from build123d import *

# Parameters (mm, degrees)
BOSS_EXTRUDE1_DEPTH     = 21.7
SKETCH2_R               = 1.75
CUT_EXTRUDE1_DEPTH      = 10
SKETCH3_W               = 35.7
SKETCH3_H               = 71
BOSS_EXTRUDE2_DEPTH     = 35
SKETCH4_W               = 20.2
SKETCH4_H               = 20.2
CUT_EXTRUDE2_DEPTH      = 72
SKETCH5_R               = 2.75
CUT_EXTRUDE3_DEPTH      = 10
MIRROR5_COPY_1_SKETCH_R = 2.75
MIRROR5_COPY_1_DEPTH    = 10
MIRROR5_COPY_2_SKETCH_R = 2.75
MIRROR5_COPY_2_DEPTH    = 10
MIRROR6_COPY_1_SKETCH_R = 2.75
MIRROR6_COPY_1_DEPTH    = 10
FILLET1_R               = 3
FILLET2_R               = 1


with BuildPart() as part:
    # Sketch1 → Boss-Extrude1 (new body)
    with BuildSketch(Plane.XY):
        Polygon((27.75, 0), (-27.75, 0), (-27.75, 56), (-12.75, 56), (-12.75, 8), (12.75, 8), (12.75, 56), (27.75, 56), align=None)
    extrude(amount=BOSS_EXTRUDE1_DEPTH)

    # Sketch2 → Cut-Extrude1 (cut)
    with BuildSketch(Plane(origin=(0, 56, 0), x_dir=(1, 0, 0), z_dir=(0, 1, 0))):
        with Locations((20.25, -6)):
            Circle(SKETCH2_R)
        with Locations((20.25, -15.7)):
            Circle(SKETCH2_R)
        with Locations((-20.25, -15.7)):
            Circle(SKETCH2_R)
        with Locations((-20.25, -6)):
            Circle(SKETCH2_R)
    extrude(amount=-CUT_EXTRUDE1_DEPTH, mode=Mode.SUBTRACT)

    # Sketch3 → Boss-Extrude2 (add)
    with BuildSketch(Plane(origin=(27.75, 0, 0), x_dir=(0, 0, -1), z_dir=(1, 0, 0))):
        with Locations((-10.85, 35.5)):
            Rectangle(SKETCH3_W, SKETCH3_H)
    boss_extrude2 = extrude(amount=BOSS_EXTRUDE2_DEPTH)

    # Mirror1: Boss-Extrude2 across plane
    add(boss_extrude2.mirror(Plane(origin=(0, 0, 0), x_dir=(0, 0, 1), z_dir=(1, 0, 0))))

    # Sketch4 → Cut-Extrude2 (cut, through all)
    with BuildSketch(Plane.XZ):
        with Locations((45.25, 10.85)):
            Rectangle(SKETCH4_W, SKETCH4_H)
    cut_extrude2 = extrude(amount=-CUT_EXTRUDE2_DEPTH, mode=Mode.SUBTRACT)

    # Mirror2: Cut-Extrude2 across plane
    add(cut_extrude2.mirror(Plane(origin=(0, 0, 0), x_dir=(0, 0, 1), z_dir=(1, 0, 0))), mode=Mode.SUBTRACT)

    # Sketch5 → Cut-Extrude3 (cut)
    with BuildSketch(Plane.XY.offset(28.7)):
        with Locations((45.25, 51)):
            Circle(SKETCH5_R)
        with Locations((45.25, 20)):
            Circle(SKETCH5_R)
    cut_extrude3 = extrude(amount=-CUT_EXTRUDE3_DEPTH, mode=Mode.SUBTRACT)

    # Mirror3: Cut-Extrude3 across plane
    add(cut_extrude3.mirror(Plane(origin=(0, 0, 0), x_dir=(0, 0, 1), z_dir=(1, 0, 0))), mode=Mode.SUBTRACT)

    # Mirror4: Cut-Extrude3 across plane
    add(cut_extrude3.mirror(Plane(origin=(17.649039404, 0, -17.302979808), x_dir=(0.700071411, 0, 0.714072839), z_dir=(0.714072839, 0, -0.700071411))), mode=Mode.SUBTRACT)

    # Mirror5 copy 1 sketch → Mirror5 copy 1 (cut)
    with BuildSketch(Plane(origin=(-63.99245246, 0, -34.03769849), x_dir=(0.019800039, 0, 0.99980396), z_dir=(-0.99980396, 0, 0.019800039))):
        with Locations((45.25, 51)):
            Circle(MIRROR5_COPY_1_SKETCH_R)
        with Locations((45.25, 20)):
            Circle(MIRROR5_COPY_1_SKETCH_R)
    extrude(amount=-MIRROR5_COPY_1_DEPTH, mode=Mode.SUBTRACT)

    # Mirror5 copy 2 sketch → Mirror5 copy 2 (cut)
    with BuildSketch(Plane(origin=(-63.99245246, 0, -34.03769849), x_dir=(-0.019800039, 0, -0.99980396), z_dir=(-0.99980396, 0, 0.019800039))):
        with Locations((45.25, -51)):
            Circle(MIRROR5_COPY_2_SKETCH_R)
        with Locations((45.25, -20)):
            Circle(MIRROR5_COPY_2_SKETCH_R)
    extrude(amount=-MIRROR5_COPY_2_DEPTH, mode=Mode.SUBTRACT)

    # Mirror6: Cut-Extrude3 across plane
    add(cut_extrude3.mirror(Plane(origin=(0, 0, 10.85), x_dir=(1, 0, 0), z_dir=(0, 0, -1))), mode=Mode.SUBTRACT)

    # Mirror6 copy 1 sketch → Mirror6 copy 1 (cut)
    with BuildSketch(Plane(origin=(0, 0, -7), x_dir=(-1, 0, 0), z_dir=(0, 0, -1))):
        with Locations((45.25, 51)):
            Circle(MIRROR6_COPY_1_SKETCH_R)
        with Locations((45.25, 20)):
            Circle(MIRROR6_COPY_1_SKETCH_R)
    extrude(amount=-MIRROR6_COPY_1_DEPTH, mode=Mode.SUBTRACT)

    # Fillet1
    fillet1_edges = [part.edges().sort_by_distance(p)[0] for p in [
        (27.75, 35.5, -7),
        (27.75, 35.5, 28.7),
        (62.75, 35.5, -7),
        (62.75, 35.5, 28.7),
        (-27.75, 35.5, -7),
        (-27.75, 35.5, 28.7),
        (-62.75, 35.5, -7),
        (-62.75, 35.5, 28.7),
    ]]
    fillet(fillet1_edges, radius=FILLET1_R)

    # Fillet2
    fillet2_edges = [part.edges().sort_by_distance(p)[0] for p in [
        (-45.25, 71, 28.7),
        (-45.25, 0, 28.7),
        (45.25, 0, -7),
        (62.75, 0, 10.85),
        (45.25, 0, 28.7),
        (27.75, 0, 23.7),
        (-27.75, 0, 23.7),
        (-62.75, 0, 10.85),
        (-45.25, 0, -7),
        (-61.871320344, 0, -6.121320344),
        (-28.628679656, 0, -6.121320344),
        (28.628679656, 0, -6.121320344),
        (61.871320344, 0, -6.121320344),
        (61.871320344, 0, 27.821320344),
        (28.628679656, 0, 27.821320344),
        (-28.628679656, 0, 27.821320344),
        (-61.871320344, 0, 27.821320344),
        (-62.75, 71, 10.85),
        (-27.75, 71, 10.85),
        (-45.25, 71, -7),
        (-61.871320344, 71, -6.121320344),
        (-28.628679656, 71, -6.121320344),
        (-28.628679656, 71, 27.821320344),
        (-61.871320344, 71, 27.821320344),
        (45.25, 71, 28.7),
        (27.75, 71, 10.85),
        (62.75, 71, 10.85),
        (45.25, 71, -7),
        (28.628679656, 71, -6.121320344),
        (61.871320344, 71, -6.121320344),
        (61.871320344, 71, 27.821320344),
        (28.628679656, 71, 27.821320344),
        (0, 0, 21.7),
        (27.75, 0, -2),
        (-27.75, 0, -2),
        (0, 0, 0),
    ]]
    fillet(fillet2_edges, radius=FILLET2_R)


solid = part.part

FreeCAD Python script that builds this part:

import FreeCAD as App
import Part
import Sketcher


def edges_at(feature, points):
    """Names of the edges that pass closest to the given points."""
    edges = feature.Shape.Edges
    near = lambda p: min(range(len(edges)), key=lambda i: edges[i].distToShape(Part.Vertex(*p))[0])
    return sorted({f"Edge{near(p) + 1}" for p in points})


def add_polygon(sketch, points):
    """Adds a closed chain of lines whose ends are joined by coincident constraints."""
    first, n = sketch.GeometryCount, len(points)
    for a, b in zip(points, points[1:] + points[:1]):
        sketch.addGeometry(Part.LineSegment(App.Vector(*a, 0), App.Vector(*b, 0)), False)
    for i in range(n):
        sketch.addConstraint(Sketcher.Constraint("Coincident", first + i, 2, first + (i + 1) % n, 1))

doc = App.newDocument("Part")
params = doc.addObject("Spreadsheet::Sheet", "Params")
for row, (alias, value) in enumerate([
    ("sketch1_width", "15 mm"),
    ("sketch1_height", "56 mm"),
    ("sketch1_height2", "48 mm"),
    ("sketch1_width2", "55.5 mm"),
    ("pad1_length", "21.7 mm"),
    ("sketch2_diameter", "3.5 mm"),
    ("pocket1_length", "10 mm"),
    ("sketch3_width", "71 mm"),
    ("sketch3_height", "35.7 mm"),
    ("pad2_length", "35 mm"),
    ("sketch4_width", "20.2 mm"),
    ("sketch5_diameter", "5.5 mm"),
    ("pocket3_length", "10 mm"),
    ("sketch6_diameter", "5.5 mm"),
    ("pocket4_length", "10 mm"),
    ("sketch7_diameter", "5.5 mm"),
    ("pocket5_length", "10 mm"),
    ("sketch8_diameter", "5.5 mm"),
    ("pocket6_length", "10 mm"),
    ("fillet_radius", "3 mm"),
    ("fillet2_radius", "1 mm"),
], start=1):
    params.set(f"A{row}", alias)
    params.set(f"B{row}", "=" + value)
    params.setAlias(f"B{row}", alias)

body = doc.addObject("PartDesign::Body", "Body")

# Sketch on XY plane
sketch1 = doc.addObject("Sketcher::SketchObject", "Sketch")
body.addObject(sketch1)
sketch1.AttachmentSupport = (doc.XY_Plane, [""])
sketch1.MapMode = "FlatFace"
add_polygon(sketch1, [(-28, 0), (28, 0), (28, 56), (13, 56), (13, 8), (-13, 8), (-13, 56), (-28, 56)])  # lines 0-7
sketch1.addConstraint([
    Sketcher.Constraint("Horizontal", 0),
    Sketcher.Constraint("Vertical", 1),
    Sketcher.Constraint("Horizontal", 2),
    Sketcher.Constraint("Vertical", 3),
    Sketcher.Constraint("Horizontal", 4),
    Sketcher.Constraint("Vertical", 5),
    Sketcher.Constraint("Horizontal", 6),
    Sketcher.Constraint("Vertical", 7),
    Sketcher.Constraint("Symmetric", 0, 2, 7, 2, -1, 1),
    Sketcher.Constraint("Symmetric", 2, 2, 5, 2, -2),
    Sketcher.Constraint("DistanceX", 2, 2, 2, 1, 15.0),
    Sketcher.Constraint("DistanceY", 1, 1, 1, 2, 56.0),
    Sketcher.Constraint("DistanceY", 3, 2, 3, 1, 48.0),
    Sketcher.Constraint("DistanceX", 0, 1, 0, 2, 55.5),
])
sketch1.setExpression("Constraints[18]", "Params.sketch1_width")
sketch1.setExpression("Constraints[19]", "Params.sketch1_height")
sketch1.setExpression("Constraints[20]", "Params.sketch1_height2")
sketch1.setExpression("Constraints[21]", "Params.sketch1_width2")
pad1 = doc.addObject("PartDesign::Pad", "Pad")
body.addObject(pad1)
pad1.Profile = sketch1
pad1.setExpression("Length", "Params.pad1_length")

# Sketch on XZ plane
sketch2 = doc.addObject("Sketcher::SketchObject", "Sketch001")
body.addObject(sketch2)
sketch2.AttachmentSupport = (doc.XZ_Plane, [""])
sketch2.MapMode = "FlatFace"
sketch2.AttachmentOffset = App.Placement(App.Vector(0, 0, -56), App.Rotation())
sketch2.addGeometry([
    Part.Circle(App.Vector(20.2, 6, 0), App.Vector(0, 0, 1), 1.8),
    Part.Circle(App.Vector(20.2, 15.7, 0), App.Vector(0, 0, 1), 1.8),
    Part.Circle(App.Vector(-20.2, 15.7, 0), App.Vector(0, 0, 1), 1.8),
    Part.Circle(App.Vector(-20.2, 6, 0), App.Vector(0, 0, 1), 1.8),
], False)
sketch2.addConstraint([
    Sketcher.Constraint("Equal", 0, 1),
    Sketcher.Constraint("Equal", 1, 2),
    Sketcher.Constraint("Equal", 2, 3),
    Sketcher.Constraint("Symmetric", 1, 3, 2, 3, -2),
    Sketcher.Constraint("Symmetric", 0, 3, 3, 3, -2),
    Sketcher.Constraint("Vertical", 0, 3, 1, 3),
    Sketcher.Constraint("Diameter", 0, 3.5),
    Sketcher.Constraint("DistanceY", -1, 1, 0, 3, 6.0),
    Sketcher.Constraint("DistanceY", -1, 1, 1, 3, 15.7),
    Sketcher.Constraint("DistanceX", 2, 3, 1, 3, 40.5),
])
sketch2.setExpression("Constraints[6]", "Params.sketch2_diameter")
pocket1 = doc.addObject("PartDesign::Pocket", "Pocket")
body.addObject(pocket1)
pocket1.Profile = sketch2
pocket1.setExpression("Length", "Params.pocket1_length")
pocket1.Reversed = True

# Sketch on YZ plane
sketch3 = doc.addObject("Sketcher::SketchObject", "Sketch002")
body.addObject(sketch3)
sketch3.AttachmentSupport = (doc.YZ_Plane, [""])
sketch3.MapMode = "FlatFace"
sketch3.AttachmentOffset = App.Placement(App.Vector(0, 0, 27.75), App.Rotation())
add_polygon(sketch3, [(71, 29), (0, 29), (0, -7), (71, -7)])  # lines 0-3
sketch3.addConstraint([
    Sketcher.Constraint("Horizontal", 0),
    Sketcher.Constraint("Vertical", 1),
    Sketcher.Constraint("Horizontal", 2),
    Sketcher.Constraint("Vertical", 3),
    Sketcher.Constraint("PointOnObject", 0, 2, -2),
    Sketcher.Constraint("DistanceX", 0, 2, 0, 1, 71.0),
    Sketcher.Constraint("DistanceY", 1, 2, 1, 1, 35.7),
    Sketcher.Constraint("DistanceY", 1, 2, -1, 1, 7.0),
])
sketch3.setExpression("Constraints[9]", "Params.sketch3_width")
sketch3.setExpression("Constraints[10]", "Params.sketch3_height")
pad2 = doc.addObject("PartDesign::Pad", "Pad001")
body.addObject(pad2)
pad2.Profile = sketch3
pad2.setExpression("Length", "Params.pad2_length")
doc.recompute()

mirrored = doc.addObject("PartDesign::Mirrored", "Mirrored")
body.addObject(mirrored)
mirrored.Originals = [pad2]
mirrored.MirrorPlane = (doc.YZ_Plane, [""])
body.Tip = mirrored

# Sketch on XZ plane
sketch4 = doc.addObject("Sketcher::SketchObject", "Sketch003")
body.addObject(sketch4)
sketch4.AttachmentSupport = (doc.XZ_Plane, [""])
sketch4.MapMode = "FlatFace"
add_polygon(sketch4, [(35, 21), (35, 1), (55, 1), (55, 21)])  # lines 0-3
sketch4.addConstraint([
    Sketcher.Constraint("Vertical", 0),
    Sketcher.Constraint("Horizontal", 1),
    Sketcher.Constraint("Vertical", 2),
    Sketcher.Constraint("Horizontal", 3),
    Sketcher.Constraint("Equal", 3, 0),
    Sketcher.Constraint("DistanceX", 1, 1, 1, 2, 20.2),
    Sketcher.Constraint("DistanceX", -1, 1, 0, 2, 35.15),
    Sketcher.Constraint("DistanceY", -1, 1, 0, 2, 0.75),
])
sketch4.setExpression("Constraints[9]", "Params.sketch4_width")
pocket2 = doc.addObject("PartDesign::Pocket", "Pocket001")
body.addObject(pocket2)
pocket2.Profile = sketch4
pocket2.Type = "ThroughAll"
doc.recompute()

mirrored2 = doc.addObject("PartDesign::Mirrored", "Mirrored001")
body.addObject(mirrored2)
mirrored2.Originals = [pocket2]
mirrored2.MirrorPlane = (doc.YZ_Plane, [""])
body.Tip = mirrored2

# Sketch on XY plane
sketch5 = doc.addObject("Sketcher::SketchObject", "Sketch004")
body.addObject(sketch5)
sketch5.AttachmentSupport = (doc.XY_Plane, [""])
sketch5.MapMode = "FlatFace"
sketch5.AttachmentOffset = App.Placement(App.Vector(0, 0, 28.7), App.Rotation())
sketch5.addGeometry([
    Part.Circle(App.Vector(45.2, 51, 0), App.Vector(0, 0, 1), 2.8),
    Part.Circle(App.Vector(45.2, 20, 0), App.Vector(0, 0, 1), 2.8),
], False)
sketch5.addConstraint([
    Sketcher.Constraint("Equal", 0, 1),
    Sketcher.Constraint("Vertical", 0, 3, 1, 3),
    Sketcher.Constraint("Diameter", 0, 5.5),
    Sketcher.Constraint("DistanceY", -1, 1, 0, 3, 51.0),
    Sketcher.Constraint("DistanceY", -1, 1, 1, 3, 20.0),
    Sketcher.Constraint("DistanceX", -1, 1, 0, 3, 45.25),
])
sketch5.setExpression("Constraints[2]", "Params.sketch5_diameter")
pocket3 = doc.addObject("PartDesign::Pocket", "Pocket002")
body.addObject(pocket3)
pocket3.Profile = sketch5
pocket3.setExpression("Length", "Params.pocket3_length")
doc.recompute()

mirrored3 = doc.addObject("PartDesign::Mirrored", "Mirrored002")
body.addObject(mirrored3)
mirrored3.Originals = [pocket3]
mirrored3.MirrorPlane = (doc.YZ_Plane, [""])
body.Tip = mirrored3
doc.recompute()

datumplane = doc.addObject("PartDesign::Plane", "DatumPlane")
body.addObject(datumplane)
datumplane.Placement = App.Placement(App.Vector(17.649039, 0, -17.30298), App.Rotation(App.Vector(0.700071411, 0, 0.714072839), App.Vector(0, -1, 0), App.Vector(0.714072839, 0, -0.700071411), "ZXY"))
mirrored4 = doc.addObject("PartDesign::Mirrored", "Mirrored003")
body.addObject(mirrored4)
mirrored4.Originals = [pocket3]
mirrored4.MirrorPlane = (datumplane, [""])
body.Tip = mirrored4

# Sketch on an angled plane
sketch6 = doc.addObject("Sketcher::SketchObject", "Sketch005")
body.addObject(sketch6)
sketch6.Placement = App.Placement(App.Vector(-63.992452, 0, -34.037698), App.Rotation(App.Vector(0.019800039, 0, 0.99980396), App.Vector(0, 1, 0), App.Vector(-0.99980396, 0, 0.019800039), "ZXY"))
sketch6.addGeometry([
    Part.Circle(App.Vector(45.2, 51, 0), App.Vector(0, 0, 1), 2.8),
    Part.Circle(App.Vector(45.2, 20, 0), App.Vector(0, 0, 1), 2.8),
], False)
sketch6.addConstraint([
    Sketcher.Constraint("Equal", 0, 1),
    Sketcher.Constraint("Vertical", 0, 3, 1, 3),
    Sketcher.Constraint("Diameter", 0, 5.5),
    Sketcher.Constraint("DistanceY", -1, 1, 0, 3, 51.0),
    Sketcher.Constraint("DistanceY", -1, 1, 1, 3, 20.0),
    Sketcher.Constraint("DistanceX", -1, 1, 0, 3, 45.25),
])
sketch6.setExpression("Constraints[2]", "Params.sketch6_diameter")
pocket4 = doc.addObject("PartDesign::Pocket", "Pocket003")
body.addObject(pocket4)
pocket4.Profile = sketch6
pocket4.setExpression("Length", "Params.pocket4_length")

# Sketch on an angled plane
sketch7 = doc.addObject("Sketcher::SketchObject", "Sketch006")
body.addObject(sketch7)
sketch7.Placement = App.Placement(App.Vector(-63.992452, 0, -34.037698), App.Rotation(App.Vector(-0.019800039, 0, -0.99980396), App.Vector(0, -1, 0), App.Vector(-0.99980396, 0, 0.019800039), "ZXY"))
sketch7.addGeometry([
    Part.Circle(App.Vector(45.2, -51, 0), App.Vector(0, 0, 1), 2.8),
    Part.Circle(App.Vector(45.2, -20, 0), App.Vector(0, 0, 1), 2.8),
], False)
sketch7.addConstraint([
    Sketcher.Constraint("Equal", 0, 1),
    Sketcher.Constraint("Vertical", 0, 3, 1, 3),
    Sketcher.Constraint("Diameter", 0, 5.5),
    Sketcher.Constraint("DistanceY", 0, 3, -1, 1, 51.0),
    Sketcher.Constraint("DistanceY", 1, 3, -1, 1, 20.0),
    Sketcher.Constraint("DistanceX", -1, 1, 0, 3, 45.25),
])
sketch7.setExpression("Constraints[2]", "Params.sketch7_diameter")
pocket5 = doc.addObject("PartDesign::Pocket", "Pocket004")
body.addObject(pocket5)
pocket5.Profile = sketch7
pocket5.setExpression("Length", "Params.pocket5_length")
doc.recompute()

datumplane2 = doc.addObject("PartDesign::Plane", "DatumPlane001")
body.addObject(datumplane2)
datumplane2.AttachmentSupport = (doc.XY_Plane, [""])
datumplane2.MapMode = "FlatFace"
datumplane2.AttachmentOffset = App.Placement(App.Vector(0, 0, 10.85), App.Rotation())
mirrored5 = doc.addObject("PartDesign::Mirrored", "Mirrored004")
body.addObject(mirrored5)
mirrored5.Originals = [pocket3]
mirrored5.MirrorPlane = (datumplane2, [""])
body.Tip = mirrored5

# Sketch on XY plane
sketch8 = doc.addObject("Sketcher::SketchObject", "Sketch007")
body.addObject(sketch8)
sketch8.AttachmentSupport = (doc.XY_Plane, [""])
sketch8.MapMode = "FlatFace"
sketch8.AttachmentOffset = App.Placement(App.Vector(0, 0, -7), App.Rotation())
sketch8.addGeometry([
    Part.Circle(App.Vector(-45.2, 51, 0), App.Vector(0, 0, 1), 2.8),
    Part.Circle(App.Vector(-45.2, 20, 0), App.Vector(0, 0, 1), 2.8),
], False)
sketch8.addConstraint([
    Sketcher.Constraint("Equal", 0, 1),
    Sketcher.Constraint("Vertical", 0, 3, 1, 3),
    Sketcher.Constraint("Diameter", 0, 5.5),
    Sketcher.Constraint("DistanceY", -1, 1, 0, 3, 51.0),
    Sketcher.Constraint("DistanceY", -1, 1, 1, 3, 20.0),
    Sketcher.Constraint("DistanceX", 0, 3, -1, 1, 45.25),
])
sketch8.setExpression("Constraints[2]", "Params.sketch8_diameter")
pocket6 = doc.addObject("PartDesign::Pocket", "Pocket005")
body.addObject(pocket6)
pocket6.Profile = sketch8
pocket6.setExpression("Length", "Params.pocket6_length")
pocket6.Reversed = True
doc.recompute()

fillet = doc.addObject("PartDesign::Fillet", "Fillet")
body.addObject(fillet)
fillet.Base = (pocket6, edges_at(pocket6, [
    (27.75, 35.5, -7),
    (27.75, 35.5, 28.7),
    (62.75, 35.5, -7),
    (62.75, 35.5, 28.7),
    (-27.75, 35.5, -7),
    (-27.75, 35.5, 28.7),
    (-62.75, 35.5, -7),
    (-62.75, 35.5, 28.7),
]))
fillet.setExpression("Radius", "Params.fillet_radius")
doc.recompute()

fillet2 = doc.addObject("PartDesign::Fillet", "Fillet001")
body.addObject(fillet2)
fillet2.Base = (fillet, edges_at(fillet, [
    (-45.25, 71, 28.7),
    (-45.25, 0, 28.7),
    (45.25, 0, -7),
    (62.75, 0, 10.85),
    (45.25, 0, 28.7),
    (27.75, 0, 23.7),
    (-27.75, 0, 23.7),
    (-62.75, 0, 10.85),
    (-45.25, 0, -7),
    (-61.871, 0, -6.121),
    (-28.629, 0, -6.121),
    (28.629, 0, -6.121),
    (61.871, 0, -6.121),
    (61.871, 0, 27.821),
    (28.629, 0, 27.821),
    (-28.629, 0, 27.821),
    (-61.871, 0, 27.821),
    (-62.75, 71, 10.85),
    (-27.75, 71, 10.85),
    (-45.25, 71, -7),
    (-61.871, 71, -6.121),
    (-28.629, 71, -6.121),
    (-28.629, 71, 27.821),
    (-61.871, 71, 27.821),
    (45.25, 71, 28.7),
    (27.75, 71, 10.85),
    (62.75, 71, 10.85),
    (45.25, 71, -7),
    (28.629, 71, -6.121),
    (61.871, 71, -6.121),
    (61.871, 71, 27.821),
    (28.629, 71, 27.821),
    (0, 0, 21.7),
    (27.75, 0, -2),
    (-27.75, 0, -2),
    (0, 0, 0),
]))
fillet2.setExpression("Radius", "Params.fillet2_radius")

doc.recompute()
